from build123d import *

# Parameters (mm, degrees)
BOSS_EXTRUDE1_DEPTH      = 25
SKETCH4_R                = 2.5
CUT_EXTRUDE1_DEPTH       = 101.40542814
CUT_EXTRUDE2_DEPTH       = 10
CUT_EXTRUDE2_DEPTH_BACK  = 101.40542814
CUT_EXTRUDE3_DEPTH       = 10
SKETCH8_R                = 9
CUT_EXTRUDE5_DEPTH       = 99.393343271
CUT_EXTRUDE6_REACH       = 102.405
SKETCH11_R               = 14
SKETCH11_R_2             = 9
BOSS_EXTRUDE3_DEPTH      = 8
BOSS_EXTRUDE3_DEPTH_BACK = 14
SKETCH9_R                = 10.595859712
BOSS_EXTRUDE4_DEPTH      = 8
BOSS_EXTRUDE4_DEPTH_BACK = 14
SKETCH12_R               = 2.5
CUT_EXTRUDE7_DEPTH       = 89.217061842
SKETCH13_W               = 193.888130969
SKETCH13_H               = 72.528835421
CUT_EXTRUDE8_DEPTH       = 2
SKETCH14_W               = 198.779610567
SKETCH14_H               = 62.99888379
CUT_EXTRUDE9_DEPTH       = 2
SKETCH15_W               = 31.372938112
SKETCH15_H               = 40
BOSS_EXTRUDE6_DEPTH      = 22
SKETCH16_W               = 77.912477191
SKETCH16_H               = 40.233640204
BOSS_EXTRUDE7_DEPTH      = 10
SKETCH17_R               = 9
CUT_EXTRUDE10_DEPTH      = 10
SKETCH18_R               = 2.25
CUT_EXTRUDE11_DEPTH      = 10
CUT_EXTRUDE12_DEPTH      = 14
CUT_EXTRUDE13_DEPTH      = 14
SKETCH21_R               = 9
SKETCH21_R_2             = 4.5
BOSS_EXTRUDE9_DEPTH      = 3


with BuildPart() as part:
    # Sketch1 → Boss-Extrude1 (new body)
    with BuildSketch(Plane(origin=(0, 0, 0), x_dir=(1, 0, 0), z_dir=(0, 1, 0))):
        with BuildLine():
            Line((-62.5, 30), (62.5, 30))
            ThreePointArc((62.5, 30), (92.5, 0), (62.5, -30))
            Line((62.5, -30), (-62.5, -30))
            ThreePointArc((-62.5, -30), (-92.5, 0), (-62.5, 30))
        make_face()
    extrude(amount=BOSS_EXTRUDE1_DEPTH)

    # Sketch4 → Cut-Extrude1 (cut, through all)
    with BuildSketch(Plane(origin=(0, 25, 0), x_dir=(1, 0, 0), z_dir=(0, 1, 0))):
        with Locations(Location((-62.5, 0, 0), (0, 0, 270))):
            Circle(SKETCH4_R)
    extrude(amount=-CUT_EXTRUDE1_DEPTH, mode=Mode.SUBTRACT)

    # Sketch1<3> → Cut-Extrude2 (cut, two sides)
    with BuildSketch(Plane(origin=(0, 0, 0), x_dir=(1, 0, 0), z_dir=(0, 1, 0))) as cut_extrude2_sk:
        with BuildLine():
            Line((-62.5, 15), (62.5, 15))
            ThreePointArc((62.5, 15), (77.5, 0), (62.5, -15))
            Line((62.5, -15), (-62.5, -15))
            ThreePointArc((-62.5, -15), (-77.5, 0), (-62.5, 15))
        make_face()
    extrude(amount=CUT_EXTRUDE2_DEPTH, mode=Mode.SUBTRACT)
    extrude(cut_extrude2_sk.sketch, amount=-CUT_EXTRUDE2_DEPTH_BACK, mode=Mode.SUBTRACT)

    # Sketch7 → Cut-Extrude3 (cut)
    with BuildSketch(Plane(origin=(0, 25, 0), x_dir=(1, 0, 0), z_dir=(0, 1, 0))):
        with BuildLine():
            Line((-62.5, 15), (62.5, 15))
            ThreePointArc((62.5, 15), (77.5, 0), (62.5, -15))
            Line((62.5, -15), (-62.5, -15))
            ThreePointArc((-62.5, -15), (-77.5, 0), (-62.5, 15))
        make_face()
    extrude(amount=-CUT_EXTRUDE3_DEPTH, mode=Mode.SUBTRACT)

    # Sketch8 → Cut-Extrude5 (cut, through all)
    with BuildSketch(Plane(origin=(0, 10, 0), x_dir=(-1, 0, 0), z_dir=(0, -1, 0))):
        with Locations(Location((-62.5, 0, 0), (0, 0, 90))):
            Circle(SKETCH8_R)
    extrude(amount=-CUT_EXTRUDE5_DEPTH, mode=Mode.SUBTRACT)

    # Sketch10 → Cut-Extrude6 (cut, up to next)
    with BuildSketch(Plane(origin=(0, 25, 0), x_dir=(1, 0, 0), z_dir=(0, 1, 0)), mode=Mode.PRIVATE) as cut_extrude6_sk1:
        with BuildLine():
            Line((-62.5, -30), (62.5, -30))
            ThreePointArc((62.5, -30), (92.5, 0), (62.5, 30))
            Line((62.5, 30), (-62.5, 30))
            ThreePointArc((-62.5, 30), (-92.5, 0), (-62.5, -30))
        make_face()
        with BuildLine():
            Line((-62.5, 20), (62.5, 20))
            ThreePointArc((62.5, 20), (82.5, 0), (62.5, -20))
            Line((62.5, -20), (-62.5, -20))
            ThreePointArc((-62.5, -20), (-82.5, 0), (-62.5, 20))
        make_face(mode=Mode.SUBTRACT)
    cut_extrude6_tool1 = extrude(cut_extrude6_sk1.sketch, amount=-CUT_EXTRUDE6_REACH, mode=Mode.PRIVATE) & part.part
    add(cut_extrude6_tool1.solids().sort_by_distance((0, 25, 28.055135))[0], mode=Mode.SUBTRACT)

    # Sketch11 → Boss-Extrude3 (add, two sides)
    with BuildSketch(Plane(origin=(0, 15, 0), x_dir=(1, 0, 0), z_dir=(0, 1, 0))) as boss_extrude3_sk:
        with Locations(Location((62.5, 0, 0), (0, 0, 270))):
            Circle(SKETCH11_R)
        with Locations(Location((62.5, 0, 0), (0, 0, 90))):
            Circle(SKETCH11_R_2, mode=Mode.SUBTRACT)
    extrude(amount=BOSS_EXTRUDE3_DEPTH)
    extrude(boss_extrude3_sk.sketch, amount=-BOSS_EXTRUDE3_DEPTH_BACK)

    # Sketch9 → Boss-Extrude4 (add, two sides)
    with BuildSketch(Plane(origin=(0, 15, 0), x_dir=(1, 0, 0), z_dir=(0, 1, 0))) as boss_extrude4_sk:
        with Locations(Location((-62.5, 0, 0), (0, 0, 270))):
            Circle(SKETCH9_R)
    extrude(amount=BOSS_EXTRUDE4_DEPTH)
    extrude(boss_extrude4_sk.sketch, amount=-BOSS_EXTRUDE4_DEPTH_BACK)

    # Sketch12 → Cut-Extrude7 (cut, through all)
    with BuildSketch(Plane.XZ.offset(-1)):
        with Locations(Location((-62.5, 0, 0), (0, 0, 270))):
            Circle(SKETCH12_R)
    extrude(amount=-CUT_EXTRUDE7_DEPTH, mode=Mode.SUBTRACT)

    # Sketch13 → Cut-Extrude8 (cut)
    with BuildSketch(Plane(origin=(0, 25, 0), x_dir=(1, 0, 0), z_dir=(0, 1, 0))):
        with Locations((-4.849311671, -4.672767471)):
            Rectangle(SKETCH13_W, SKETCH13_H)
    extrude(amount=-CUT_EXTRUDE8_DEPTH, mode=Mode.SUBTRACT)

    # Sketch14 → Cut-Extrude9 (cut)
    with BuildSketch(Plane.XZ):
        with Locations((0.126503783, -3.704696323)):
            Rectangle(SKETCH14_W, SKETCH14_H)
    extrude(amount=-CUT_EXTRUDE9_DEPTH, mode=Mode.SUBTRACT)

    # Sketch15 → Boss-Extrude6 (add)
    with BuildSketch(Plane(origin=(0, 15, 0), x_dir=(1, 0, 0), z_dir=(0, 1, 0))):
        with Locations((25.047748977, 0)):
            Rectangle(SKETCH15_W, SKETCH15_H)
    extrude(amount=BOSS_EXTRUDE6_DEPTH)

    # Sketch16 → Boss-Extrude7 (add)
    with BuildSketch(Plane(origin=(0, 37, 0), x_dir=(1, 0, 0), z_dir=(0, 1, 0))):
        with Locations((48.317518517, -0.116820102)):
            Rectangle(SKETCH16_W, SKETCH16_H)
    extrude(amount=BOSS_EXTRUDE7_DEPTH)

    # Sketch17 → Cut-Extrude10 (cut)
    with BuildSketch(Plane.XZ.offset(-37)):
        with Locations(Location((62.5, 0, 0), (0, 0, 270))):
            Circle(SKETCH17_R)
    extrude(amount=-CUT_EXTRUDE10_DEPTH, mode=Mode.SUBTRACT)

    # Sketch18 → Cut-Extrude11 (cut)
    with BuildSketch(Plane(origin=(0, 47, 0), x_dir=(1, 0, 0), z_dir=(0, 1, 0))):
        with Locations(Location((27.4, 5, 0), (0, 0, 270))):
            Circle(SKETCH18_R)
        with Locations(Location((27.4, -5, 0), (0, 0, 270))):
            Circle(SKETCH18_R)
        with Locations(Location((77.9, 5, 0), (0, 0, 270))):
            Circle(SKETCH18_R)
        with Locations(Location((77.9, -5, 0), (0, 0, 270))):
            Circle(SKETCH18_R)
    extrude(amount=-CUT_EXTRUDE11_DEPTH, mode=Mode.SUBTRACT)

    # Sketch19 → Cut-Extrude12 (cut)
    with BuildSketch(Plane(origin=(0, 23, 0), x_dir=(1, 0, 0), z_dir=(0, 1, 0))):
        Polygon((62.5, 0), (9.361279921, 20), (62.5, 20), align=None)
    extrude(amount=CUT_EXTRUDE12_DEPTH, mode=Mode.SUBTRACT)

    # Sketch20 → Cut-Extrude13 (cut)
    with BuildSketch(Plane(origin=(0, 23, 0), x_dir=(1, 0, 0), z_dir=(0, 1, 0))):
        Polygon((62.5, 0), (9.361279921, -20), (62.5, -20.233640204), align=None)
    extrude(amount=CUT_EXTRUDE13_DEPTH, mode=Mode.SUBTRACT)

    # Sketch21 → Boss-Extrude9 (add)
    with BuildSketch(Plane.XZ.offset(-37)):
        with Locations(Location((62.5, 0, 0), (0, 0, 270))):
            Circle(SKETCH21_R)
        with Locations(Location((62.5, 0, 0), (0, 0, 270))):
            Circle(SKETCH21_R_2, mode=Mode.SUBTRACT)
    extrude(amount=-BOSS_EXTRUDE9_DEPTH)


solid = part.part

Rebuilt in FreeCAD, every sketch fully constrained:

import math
import FreeCAD as App
import Part
import Sketcher


def add_polygon(sketch, points):
    """Adds a closed chain of lines whose ends are joined by coincident constraints."""
    first, n = sketch.GeometryCount, len(points)
    for a, b in zip(points, points[1:] + points[:1]):
        sketch.addGeometry(Part.LineSegment(App.Vector(*a, 0), App.Vector(*b, 0)), False)
    for i in range(n):
        sketch.addConstraint(Sketcher.Constraint("Coincident", first + i, 2, first + (i + 1) % n, 1))

doc = App.newDocument("Part")
params = doc.addObject("Spreadsheet::Sheet", "Params")
for row, (alias, value) in enumerate([
    ("sketch1_radius", "30 mm"),
    ("sketch1_width", "125 mm"),
    ("pad1_length", "25 mm"),
    ("sketch2_diameter", "5 mm"),
    ("sketch3_radius", "15 mm"),
    ("sketch3_width", "125 mm"),
    ("pocket2_length", "10 mm"),
    ("pocket2_length2", "101.405428 mm"),
    ("sketch4_radius", "15 mm"),
    ("sketch4_width", "125 mm"),
    ("pocket3_length", "10 mm"),
    ("sketch5_diameter", "18 mm"),
    ("sketch6_radius", "30 mm"),
    ("sketch6_radius2", "20 mm"),
    ("sketch6_width", "125 mm"),
    ("pocket5_length", "25 mm"),
    ("sketch7_diameter", "28 mm"),
    ("sketch7_diameter2", "18 mm"),
    ("pad2_length", "8 mm"),
    ("pad2_length2", "14 mm"),
    ("pad3_length", "8 mm"),
    ("pad3_length2", "14 mm"),
    ("sketch9_diameter", "5 mm"),
    ("pocket7_length", "2 mm"),
    ("pocket8_length", "2 mm"),
    ("sketch12_height", "40 mm"),
    ("pad4_length", "22 mm"),
    ("pad5_length", "10 mm"),
    ("sketch14_diameter", "18 mm"),
    ("pocket9_length", "10 mm"),
    ("sketch15_diameter", "4.5 mm"),
    ("pocket10_length", "10 mm"),
    ("sketch16_height", "20 mm"),
    ("pocket11_length", "14 mm"),
    ("pocket12_length", "14 mm"),
    ("sketch18_diameter", "18 mm"),
    ("sketch18_diameter2", "9 mm"),
    ("pad6_length", "3 mm"),
], start=1):
    params.set(f"A{row}", alias)
    params.set(f"B{row}", "=" + value)
    params.setAlias(f"B{row}", alias)

body = doc.addObject("PartDesign::Body", "Body")

sketch1 = doc.addObject("Sketcher::SketchObject", "Sketch")
body.addObject(sketch1)
sketch1.AttachmentSupport = (doc.XZ_Plane, [""])
sketch1.MapMode = "FlatFace"
sketch1.addGeometry(Part.LineSegment(App.Vector(62, -30, 0), App.Vector(-62, -30, 0)), False)
sketch1.addGeometry(Part.ArcOfCircle(Part.Circle(App.Vector(-62, 0, 0), App.Vector(0, 0, 1), 30), math.radians(90), math.radians(270)), False)
sketch1.addGeometry(Part.LineSegment(App.Vector(-62, 30, 0), App.Vector(62, 30, 0)), False)
sketch1.addGeometry(Part.ArcOfCircle(Part.Circle(App.Vector(62, 0, 0), App.Vector(0, 0, 1), 30), math.radians(-90), math.radians(90)), False)
sketch1.addConstraint(Sketcher.Constraint("Tangent", 0, 2, 1, 2))
sketch1.addConstraint(Sketcher.Constraint("Tangent", 1, 1, 2, 1))
sketch1.addConstraint(Sketcher.Constraint("Tangent", 2, 2, 3, 2))
sketch1.addConstraint(Sketcher.Constraint("Tangent", 3, 1, 0, 1))
sketch1.addConstraint(Sketcher.Constraint("Horizontal", 0))
sketch1.addConstraint(Sketcher.Constraint("Horizontal", 2))
sketch1.addConstraint(Sketcher.Constraint("Symmetric", 1, 3, 3, 3, -1, 1))
sketch1.addConstraint(Sketcher.Constraint("Radius", 1, 30.0))
sketch1.addConstraint(Sketcher.Constraint("DistanceX", 0, 2, 0, 1, 125.0))
sketch1.setExpression("Constraints[7]", "Params.sketch1_radius")
sketch1.setExpression("Constraints[8]", "Params.sketch1_width")
pad1 = doc.addObject("PartDesign::Pad", "Pad")
body.addObject(pad1)
pad1.Profile = sketch1
pad1.setExpression("Length", "Params.pad1_length")
pad1.Reversed = True

sketch2 = doc.addObject("Sketcher::SketchObject", "Sketch001")
body.addObject(sketch2)
sketch2.AttachmentSupport = (doc.XZ_Plane, [""])
sketch2.MapMode = "FlatFace"
sketch2.AttachmentOffset = App.Placement(App.Vector(0, 0, -25), App.Rotation())
sketch2.addGeometry(Part.Circle(App.Vector(-62.5, 0, 0), App.Vector(0, 0, 1), 2.5), False)
sketch2.addConstraint(Sketcher.Constraint("PointOnObject", 0, 3, -1))
sketch2.addConstraint(Sketcher.Constraint("Diameter", 0, 5.0))
sketch2.addConstraint(Sketcher.Constraint("DistanceX", 0, 3, -1, 1, 62.5))
sketch2.setExpression("Constraints[1]", "Params.sketch2_diameter")
pocket1 = doc.addObject("PartDesign::Pocket", "Pocket")
body.addObject(pocket1)
pocket1.Profile = sketch2
pocket1.Type = "ThroughAll"
pocket1.Reversed = True

sketch3 = doc.addObject("Sketcher::SketchObject", "Sketch002")
body.addObject(sketch3)
sketch3.AttachmentSupport = (doc.XZ_Plane, [""])
sketch3.MapMode = "FlatFace"
sketch3.addGeometry(Part.LineSegment(App.Vector(62, -15, 0), App.Vector(-62, -15, 0)), False)
sketch3.addGeometry(Part.ArcOfCircle(Part.Circle(App.Vector(-62, 0, 0), App.Vector(0, 0, 1), 15), math.radians(90), math.radians(270)), False)
sketch3.addGeometry(Part.LineSegment(App.Vector(-62, 15, 0), App.Vector(62, 15, 0)), False)
sketch3.addGeometry(Part.ArcOfCircle(Part.Circle(App.Vector(62, 0, 0), App.Vector(0, 0, 1), 15), math.radians(-90), math.radians(90)), False)
sketch3.addConstraint(Sketcher.Constraint("Tangent", 0, 2, 1, 2))
sketch3.addConstraint(Sketcher.Constraint("Tangent", 1, 1, 2, 1))
sketch3.addConstraint(Sketcher.Constraint("Tangent", 2, 2, 3, 2))
sketch3.addConstraint(Sketcher.Constraint("Tangent", 3, 1, 0, 1))
sketch3.addConstraint(Sketcher.Constraint("Horizontal", 0))
sketch3.addConstraint(Sketcher.Constraint("Horizontal", 2))
sketch3.addConstraint(Sketcher.Constraint("Symmetric", 1, 3, 3, 3, -1, 1))
sketch3.addConstraint(Sketcher.Constraint("Radius", 1, 15.0))
sketch3.addConstraint(Sketcher.Constraint("DistanceX", 0, 2, 0, 1, 125.0))
sketch3.setExpression("Constraints[7]", "Params.sketch3_radius")
sketch3.setExpression("Constraints[8]", "Params.sketch3_width")
pocket2 = doc.addObject("PartDesign::Pocket", "Pocket001")
body.addObject(pocket2)
pocket2.Profile = sketch3
pocket2.Type = "TwoLengths"
pocket2.setExpression("Length", "Params.pocket2_length")
pocket2.setExpression("Length2", "Params.pocket2_length2")

sketch4 = doc.addObject("Sketcher::SketchObject", "Sketch003")
body.addObject(sketch4)
sketch4.AttachmentSupport = (doc.XZ_Plane, [""])
sketch4.MapMode = "FlatFace"
sketch4.AttachmentOffset = App.Placement(App.Vector(0, 0, -25), App.Rotation())
sketch4.addGeometry(Part.LineSegment(App.Vector(62, -15, 0), App.Vector(-62, -15, 0)), False)
sketch4.addGeometry(Part.ArcOfCircle(Part.Circle(App.Vector(-62, 0, 0), App.Vector(0, 0, 1), 15), math.radians(90), math.radians(270)), False)
sketch4.addGeometry(Part.LineSegment(App.Vector(-62, 15, 0), App.Vector(62, 15, 0)), False)
sketch4.addGeometry(Part.ArcOfCircle(Part.Circle(App.Vector(62, 0, 0), App.Vector(0, 0, 1), 15), math.radians(-90), math.radians(90)), False)
sketch4.addConstraint(Sketcher.Constraint("Tangent", 0, 2, 1, 2))
sketch4.addConstraint(Sketcher.Constraint("Tangent", 1, 1, 2, 1))
sketch4.addConstraint(Sketcher.Constraint("Tangent", 2, 2, 3, 2))
sketch4.addConstraint(Sketcher.Constraint("Tangent", 3, 1, 0, 1))
sketch4.addConstraint(Sketcher.Constraint("Horizontal", 0))
sketch4.addConstraint(Sketcher.Constraint("Horizontal", 2))
sketch4.addConstraint(Sketcher.Constraint("Symmetric", 1, 3, 3, 3, -1, 1))
sketch4.addConstraint(Sketcher.Constraint("Radius", 1, 15.0))
sketch4.addConstraint(Sketcher.Constraint("DistanceX", 0, 2, 0, 1, 125.0))
sketch4.setExpression("Constraints[7]", "Params.sketch4_radius")
sketch4.setExpression("Constraints[8]", "Params.sketch4_width")
pocket3 = doc.addObject("PartDesign::Pocket", "Pocket002")
body.addObject(pocket3)
pocket3.Profile = sketch4
pocket3.setExpression("Length", "Params.pocket3_length")
pocket3.Reversed = True

sketch5 = doc.addObject("Sketcher::SketchObject", "Sketch004")
body.addObject(sketch5)
sketch5.AttachmentSupport = (doc.XZ_Plane, [""])
sketch5.MapMode = "FlatFace"
sketch5.AttachmentOffset = App.Placement(App.Vector(0, 0, -10), App.Rotation())
sketch5.addGeometry(Part.Circle(App.Vector(62, 0, 0), App.Vector(0, 0, 1), 9), False)
sketch5.addConstraint(Sketcher.Constraint("PointOnObject", 0, 3, -1))
sketch5.addConstraint(Sketcher.Constraint("Diameter", 0, 18.0))
sketch5.addConstraint(Sketcher.Constraint("DistanceX", -1, 1, 0, 3, 62.5))
sketch5.setExpression("Constraints[1]", "Params.sketch5_diameter")
pocket4 = doc.addObject("PartDesign::Pocket", "Pocket003")
body.addObject(pocket4)
pocket4.Profile = sketch5
pocket4.Type = "ThroughAll"

sketch6 = doc.addObject("Sketcher::SketchObject", "Sketch005")
body.addObject(sketch6)
sketch6.AttachmentSupport = (doc.XZ_Plane, [""])
sketch6.MapMode = "FlatFace"
sketch6.AttachmentOffset = App.Placement(App.Vector(0, 0, -25), App.Rotation())
sketch6.addGeometry(Part.LineSegment(App.Vector(-62, 30, 0), App.Vector(62, 30, 0)), False)
sketch6.addGeometry(Part.ArcOfCircle(Part.Circle(App.Vector(62, 0, 0), App.Vector(0, 0, 1), 30), math.radians(-90), math.radians(90)), False)
sketch6.addGeometry(Part.LineSegment(App.Vector(62, -30, 0), App.Vector(-62, -30, 0)), False)
sketch6.addGeometry(Part.ArcOfCircle(Part.Circle(App.Vector(-62, 0, 0), App.Vector(0, 0, 1), 30), math.radians(90), math.radians(270)), False)
sketch6.addGeometry(Part.ArcOfCircle(Part.Circle(App.Vector(-62, 0, 0), App.Vector(0, 0, 1), 20), math.radians(90), math.radians(270)), False)
sketch6.addGeometry(Part.LineSegment(App.Vector(-62, -20, 0), App.Vector(62, -20, 0)), False)
sketch6.addGeometry(Part.ArcOfCircle(Part.Circle(App.Vector(62, 0, 0), App.Vector(0, 0, 1), 20), math.radians(-90), math.radians(90)), False)
sketch6.addGeometry(Part.LineSegment(App.Vector(62, 20, 0), App.Vector(-62, 20, 0)), False)
sketch6.addConstraint(Sketcher.Constraint("Tangent", 0, 2, 1, 2))
sketch6.addConstraint(Sketcher.Constraint("Tangent", 1, 1, 2, 1))
sketch6.addConstraint(Sketcher.Constraint("Tangent", 2, 2, 3, 2))
sketch6.addConstraint(Sketcher.Constraint("Tangent", 3, 1, 0, 1))
sketch6.addConstraint(Sketcher.Constraint("Tangent", 4, 2, 5, 1))
sketch6.addConstraint(Sketcher.Constraint("Tangent", 5, 2, 6, 1))
sketch6.addConstraint(Sketcher.Constraint("Tangent", 6, 2, 7, 1))
sketch6.addConstraint(Sketcher.Constraint("Tangent", 7, 2, 4, 1))
sketch6.addConstraint(Sketcher.Constraint("Horizontal", 0))
sketch6.addConstraint(Sketcher.Constraint("Horizontal", 2))
sketch6.addConstraint(Sketcher.Constraint("Horizontal", 5))
sketch6.addConstraint(Sketcher.Constraint("Horizontal", 7))
sketch6.addConstraint(Sketcher.Constraint("Coincident", 4, 3, 3, 3))
sketch6.addConstraint(Sketcher.Constraint("Symmetric", 1, 3, 3, 3, -1, 1))
sketch6.addConstraint(Sketcher.Constraint("Vertical", 6, 3, 0, 2))
sketch6.addConstraint(Sketcher.Constraint("Radius", 1, 30.0))
sketch6.addConstraint(Sketcher.Constraint("Radius", 4, 20.0))
sketch6.addConstraint(Sketcher.Constraint("DistanceX", 0, 1, 0, 2, 125.0))
sketch6.setExpression("Constraints[15]", "Params.sketch6_radius")
sketch6.setExpression("Constraints[16]", "Params.sketch6_radius2")
sketch6.setExpression("Constraints[17]", "Params.sketch6_width")
pocket5 = doc.addObject("PartDesign::Pocket", "Pocket004")
body.addObject(pocket5)
pocket5.Profile = sketch6
pocket5.setExpression("Length", "Params.pocket5_length")
pocket5.Reversed = True

sketch7 = doc.addObject("Sketcher::SketchObject", "Sketch006")
body.addObject(sketch7)
sketch7.AttachmentSupport = (doc.XZ_Plane, [""])
sketch7.MapMode = "FlatFace"
sketch7.AttachmentOffset = App.Placement(App.Vector(0, 0, -15), App.Rotation())
sketch7.addGeometry(Part.Circle(App.Vector(62, 0, 0), App.Vector(0, 0, 1), 14), False)
sketch7.addGeometry(Part.Circle(App.Vector(62, 0, 0), App.Vector(0, 0, 1), 9), False)
sketch7.addConstraint(Sketcher.Constraint("Coincident", 1, 3, 0, 3))
sketch7.addConstraint(Sketcher.Constraint("PointOnObject", 0, 3, -1))
sketch7.addConstraint(Sketcher.Constraint("Diameter", 0, 28.0))
sketch7.addConstraint(Sketcher.Constraint("Diameter", 1, 18.0))
sketch7.addConstraint(Sketcher.Constraint("DistanceX", -1, 1, 0, 3, 62.5))
sketch7.setExpression("Constraints[2]", "Params.sketch7_diameter")
sketch7.setExpression("Constraints[3]", "Params.sketch7_diameter2")
pad2 = doc.addObject("PartDesign::Pad", "Pad001")
body.addObject(pad2)
pad2.Profile = sketch7
pad2.Type = "TwoLengths"
pad2.setExpression("Length", "Params.pad2_length")
pad2.setExpression("Length2", "Params.pad2_length2")
pad2.Reversed = True

sketch8 = doc.addObject("Sketcher::SketchObject", "Sketch007")
body.addObject(sketch8)
sketch8.AttachmentSupport = (doc.XZ_Plane, [""])
sketch8.MapMode = "FlatFace"
sketch8.AttachmentOffset = App.Placement(App.Vector(0, 0, -15), App.Rotation())
sketch8.addGeometry(Part.Circle(App.Vector(-62, 0, 0), App.Vector(0, 0, 1), 11), False)
sketch8.addConstraint(Sketcher.Constraint("PointOnObject", 0, 3, -1))
sketch8.addConstraint(Sketcher.Constraint("DistanceX", 0, 3, -1, 1, 62.5))
sketch8.addConstraint(Sketcher.Constraint("Diameter", 0, 21.191719))
pad3 = doc.addObject("PartDesign::Pad", "Pad002")
body.addObject(pad3)
pad3.Profile = sketch8
pad3.Type = "TwoLengths"
pad3.setExpression("Length", "Params.pad3_length")
pad3.setExpression("Length2", "Params.pad3_length2")
pad3.Reversed = True

sketch9 = doc.addObject("Sketcher::SketchObject", "Sketch008")
body.addObject(sketch9)
sketch9.AttachmentSupport = (doc.XZ_Plane, [""])
sketch9.MapMode = "FlatFace"
sketch9.AttachmentOffset = App.Placement(App.Vector(0, 0, -1), App.Rotation())
sketch9.addGeometry(Part.Circle(App.Vector(-62.5, 0, 0), App.Vector(0, 0, 1), 2.5), False)
sketch9.addConstraint(Sketcher.Constraint("PointOnObject", 0, 3, -1))
sketch9.addConstraint(Sketcher.Constraint("Diameter", 0, 5.0))
sketch9.addConstraint(Sketcher.Constraint("DistanceX", 0, 3, -1, 1, 62.5))
sketch9.setExpression("Constraints[1]", "Params.sketch9_diameter")
pocket6 = doc.addObject("PartDesign::Pocket", "Pocket005")
body.addObject(pocket6)
pocket6.Profile = sketch9
pocket6.Type = "ThroughAll"

sketch10 = doc.addObject("Sketcher::SketchObject", "Sketch009")
body.addObject(sketch10)
sketch10.AttachmentSupport = (doc.XZ_Plane, [""])
sketch10.MapMode = "FlatFace"
sketch10.AttachmentOffset = App.Placement(App.Vector(0, 0, -25), App.Rotation())
add_polygon(sketch10, [(-102, -32), (-102, 41), (92, 41), (92, -32)])
sketch10.addConstraint(Sketcher.Constraint("Vertical", 0))
sketch10.addConstraint(Sketcher.Constraint("Horizontal", 1))
sketch10.addConstraint(Sketcher.Constraint("Vertical", 2))
sketch10.addConstraint(Sketcher.Constraint("Horizontal", 3))
sketch10.addConstraint(Sketcher.Constraint("DistanceX", 1, 1, 1, 2, 193.888131))
sketch10.addConstraint(Sketcher.Constraint("DistanceY", 0, 1, 0, 2, 72.528835))
sketch10.addConstraint(Sketcher.Constraint("DistanceY", 2, 2, -1, 1, 31.59165))
sketch10.addConstraint(Sketcher.Constraint("DistanceX", 0, 2, -1, 1, 101.793377))
pocket7 = doc.addObject("PartDesign::Pocket", "Pocket006")
body.addObject(pocket7)
pocket7.Profile = sketch10
pocket7.setExpression("Length", "Params.pocket7_length")
pocket7.Reversed = True

sketch11 = doc.addObject("Sketcher::SketchObject", "Sketch010")
body.addObject(sketch11)
sketch11.AttachmentSupport = (doc.XZ_Plane, [""])
sketch11.MapMode = "FlatFace"
add_polygon(sketch11, [(-99, 28), (-99, -35), (100, -35), (100, 28)])
sketch11.addConstraint(Sketcher.Constraint("Vertical", 0))
sketch11.addConstraint(Sketcher.Constraint("Horizontal", 1))
sketch11.addConstraint(Sketcher.Constraint("Vertical", 2))
sketch11.addConstraint(Sketcher.Constraint("Horizontal", 3))
sketch11.addConstraint(Sketcher.Constraint("DistanceX", 1, 1, 1, 2, 198.779611))
sketch11.addConstraint(Sketcher.Constraint("DistanceX", 0, 2, -1, 1, 99.263301))
sketch11.addConstraint(Sketcher.Constraint("DistanceY", 0, 2, 0, 1, 62.998884))
sketch11.addConstraint(Sketcher.Constraint("DistanceY", 0, 2, -1, 1, 35.204138))
pocket8 = doc.addObject("PartDesign::Pocket", "Pocket007")
body.addObject(pocket8)
pocket8.Profile = sketch11
pocket8.setExpression("Length", "Params.pocket8_length")

sketch12 = doc.addObject("Sketcher::SketchObject", "Sketch011")
body.addObject(sketch12)
sketch12.AttachmentSupport = (doc.XZ_Plane, [""])
sketch12.MapMode = "FlatFace"
sketch12.AttachmentOffset = App.Placement(App.Vector(0, 0, -15), App.Rotation())
add_polygon(sketch12, [(9, -20), (9, 20), (41, 20), (41, -20)])
sketch12.addConstraint(Sketcher.Constraint("Vertical", 0))
sketch12.addConstraint(Sketcher.Constraint("Horizontal", 1))
sketch12.addConstraint(Sketcher.Constraint("Vertical", 2))
sketch12.addConstraint(Sketcher.Constraint("Horizontal", 3))
sketch12.addConstraint(Sketcher.Constraint("DistanceY", 0, 1, 0, 2, 40.0))
sketch12.addConstraint(Sketcher.Constraint("DistanceY", -1, 1, 0, 2, 20.0))
sketch12.addConstraint(Sketcher.Constraint("DistanceX", 1, 1, 1, 2, 31.372938))
sketch12.addConstraint(Sketcher.Constraint("DistanceX", -1, 1, 0, 2, 9.36128))
sketch12.setExpression("Constraints[8]", "Params.sketch12_height")
pad4 = doc.addObject("PartDesign::Pad", "Pad003")
body.addObject(pad4)
pad4.Profile = sketch12
pad4.setExpression("Length", "Params.pad4_length")
pad4.Reversed = True

sketch13 = doc.addObject("Sketcher::SketchObject", "Sketch012")
body.addObject(sketch13)
sketch13.AttachmentSupport = (doc.XZ_Plane, [""])
sketch13.MapMode = "FlatFace"
sketch13.AttachmentOffset = App.Placement(App.Vector(0, 0, -37), App.Rotation())
add_polygon(sketch13, [(9, -20), (9, 20), (87, 20), (87, -20)])
sketch13.addConstraint(Sketcher.Constraint("Vertical", 0))
sketch13.addConstraint(Sketcher.Constraint("Horizontal", 1))
sketch13.addConstraint(Sketcher.Constraint("Vertical", 2))
sketch13.addConstraint(Sketcher.Constraint("Horizontal", 3))
sketch13.addConstraint(Sketcher.Constraint("DistanceY", 2, 2, -1, 1, 20.0))
sketch13.addConstraint(Sketcher.Constraint("DistanceY", 0, 1, 0, 2, 40.23364))
sketch13.addConstraint(Sketcher.Constraint("DistanceX", 1, 1, 1, 2, 77.912477))
sketch13.addConstraint(Sketcher.Constraint("DistanceX", -1, 1, 0, 2, 9.36128))
pad5 = doc.addObject("PartDesign::Pad", "Pad004")
body.addObject(pad5)
pad5.Profile = sketch13
pad5.setExpression("Length", "Params.pad5_length")
pad5.Reversed = True

sketch14 = doc.addObject("Sketcher::SketchObject", "Sketch013")
body.addObject(sketch14)
sketch14.AttachmentSupport = (doc.XZ_Plane, [""])
sketch14.MapMode = "FlatFace"
sketch14.AttachmentOffset = App.Placement(App.Vector(0, 0, -37), App.Rotation())
sketch14.addGeometry(Part.Circle(App.Vector(62, 0, 0), App.Vector(0, 0, 1), 9), False)
sketch14.addConstraint(Sketcher.Constraint("PointOnObject", 0, 3, -1))
sketch14.addConstraint(Sketcher.Constraint("Diameter", 0, 18.0))
sketch14.addConstraint(Sketcher.Constraint("DistanceX", -1, 1, 0, 3, 62.5))
sketch14.setExpression("Constraints[1]", "Params.sketch14_diameter")
pocket9 = doc.addObject("PartDesign::Pocket", "Pocket008")
body.addObject(pocket9)
pocket9.Profile = sketch14
pocket9.setExpression("Length", "Params.pocket9_length")

sketch15 = doc.addObject("Sketcher::SketchObject", "Sketch014")
body.addObject(sketch15)
sketch15.AttachmentSupport = (doc.XZ_Plane, [""])
sketch15.MapMode = "FlatFace"
sketch15.AttachmentOffset = App.Placement(App.Vector(0, 0, -47), App.Rotation())
sketch15.addGeometry(Part.Circle(App.Vector(27.4, -5, 0), App.Vector(0, 0, 1), 2.2), False)
sketch15.addGeometry(Part.Circle(App.Vector(27.4, 5, 0), App.Vector(0, 0, 1), 2.2), False)
sketch15.addGeometry(Part.Circle(App.Vector(77.9, -5, 0), App.Vector(0, 0, 1), 2.2), False)
sketch15.addGeometry(Part.Circle(App.Vector(77.9, 5, 0), App.Vector(0, 0, 1), 2.2), False)
sketch15.addConstraint(Sketcher.Constraint("Equal", 0, 1))
sketch15.addConstraint(Sketcher.Constraint("Equal", 1, 2))
sketch15.addConstraint(Sketcher.Constraint("Equal", 2, 3))
sketch15.addConstraint(Sketcher.Constraint("Symmetric", 0, 3, 1, 3, -1))
sketch15.addConstraint(Sketcher.Constraint("Symmetric", 2, 3, 3, 3, -1))
sketch15.addConstraint(Sketcher.Constraint("Horizontal", 0, 3, 2, 3))
sketch15.addConstraint(Sketcher.Constraint("Diameter", 0, 4.5))
sketch15.addConstraint(Sketcher.Constraint("DistanceY", 0, 3, -1, 1, 5.0))
sketch15.addConstraint(Sketcher.Constraint("DistanceX", -1, 1, 0, 3, 27.4))
sketch15.addConstraint(Sketcher.Constraint("DistanceX", -1, 1, 2, 3, 77.9))
sketch15.setExpression("Constraints[6]", "Params.sketch15_diameter")
pocket10 = doc.addObject("PartDesign::Pocket", "Pocket009")
body.addObject(pocket10)
pocket10.Profile = sketch15
pocket10.setExpression("Length", "Params.pocket10_length")
pocket10.Reversed = True

sketch16 = doc.addObject("Sketcher::SketchObject", "Sketch015")
body.addObject(sketch16)
sketch16.AttachmentSupport = (doc.XZ_Plane, [""])
sketch16.MapMode = "FlatFace"
sketch16.AttachmentOffset = App.Placement(App.Vector(0, 0, -23), App.Rotation())
add_polygon(sketch16, [(9, -20), (62, 0), (62, -20)])
sketch16.addConstraint(Sketcher.Constraint("Vertical", 1))
sketch16.addConstraint(Sketcher.Constraint("Horizontal", 2))
sketch16.addConstraint(Sketcher.Constraint("PointOnObject", 0, 2, -1))
sketch16.addConstraint(Sketcher.Constraint("DistanceY", 1, 2, 1, 1, 20.0))
sketch16.addConstraint(Sketcher.Constraint("DistanceX", -1, 1, 0, 2, 62.5))
sketch16.addConstraint(Sketcher.Constraint("DistanceX", 2, 2, 2, 1, 53.13872))
sketch16.setExpression("Constraints[6]", "Params.sketch16_height")
pocket11 = doc.addObject("PartDesign::Pocket", "Pocket010")
body.addObject(pocket11)
pocket11.Profile = sketch16
pocket11.setExpression("Length", "Params.pocket11_length")

sketch17 = doc.addObject("Sketcher::SketchObject", "Sketch016")
body.addObject(sketch17)
sketch17.AttachmentSupport = (doc.XZ_Plane, [""])
sketch17.MapMode = "FlatFace"
sketch17.AttachmentOffset = App.Placement(App.Vector(0, 0, -23), App.Rotation())
add_polygon(sketch17, [(62, 0), (9, 20), (62, 20)])
sketch17.addConstraint(Sketcher.Constraint("Vertical", 2))
sketch17.addConstraint(Sketcher.Constraint("PointOnObject", 2, 2, -1))
sketch17.addConstraint(Sketcher.Constraint("DistanceY", -1, 1, 0, 2, 20.0))
sketch17.addConstraint(Sketcher.Constraint("DistanceX", -1, 1, 1, 2, 62.5))
sketch17.addConstraint(Sketcher.Constraint("DistanceY", 2, 2, 2, 1, 20.23364))
sketch17.addConstraint(Sketcher.Constraint("DistanceX", -1, 1, 0, 2, 9.36128))
pocket12 = doc.addObject("PartDesign::Pocket", "Pocket011")
body.addObject(pocket12)
pocket12.Profile = sketch17
pocket12.setExpression("Length", "Params.pocket12_length")

sketch18 = doc.addObject("Sketcher::SketchObject", "Sketch017")
body.addObject(sketch18)
sketch18.AttachmentSupport = (doc.XZ_Plane, [""])
sketch18.MapMode = "FlatFace"
sketch18.AttachmentOffset = App.Placement(App.Vector(0, 0, -37), App.Rotation())
sketch18.addGeometry(Part.Circle(App.Vector(62.5, 0, 0), App.Vector(0, 0, 1), 9), False)
sketch18.addGeometry(Part.Circle(App.Vector(62.5, 0, 0), App.Vector(0, 0, 1), 4.5), False)
sketch18.addConstraint(Sketcher.Constraint("Coincident", 1, 3, 0, 3))
sketch18.addConstraint(Sketcher.Constraint("PointOnObject", 0, 3, -1))
sketch18.addConstraint(Sketcher.Constraint("Diameter", 0, 18.0))
sketch18.addConstraint(Sketcher.Constraint("Diameter", 1, 9.0))
sketch18.addConstraint(Sketcher.Constraint("DistanceX", -1, 1, 0, 3, 62.5))
sketch18.setExpression("Constraints[2]", "Params.sketch18_diameter")
sketch18.setExpression("Constraints[3]", "Params.sketch18_diameter2")
pad6 = doc.addObject("PartDesign::Pad", "Pad005")
body.addObject(pad6)
pad6.Profile = sketch18
pad6.setExpression("Length", "Params.pad6_length")
pad6.Reversed = True

doc.recompute()
